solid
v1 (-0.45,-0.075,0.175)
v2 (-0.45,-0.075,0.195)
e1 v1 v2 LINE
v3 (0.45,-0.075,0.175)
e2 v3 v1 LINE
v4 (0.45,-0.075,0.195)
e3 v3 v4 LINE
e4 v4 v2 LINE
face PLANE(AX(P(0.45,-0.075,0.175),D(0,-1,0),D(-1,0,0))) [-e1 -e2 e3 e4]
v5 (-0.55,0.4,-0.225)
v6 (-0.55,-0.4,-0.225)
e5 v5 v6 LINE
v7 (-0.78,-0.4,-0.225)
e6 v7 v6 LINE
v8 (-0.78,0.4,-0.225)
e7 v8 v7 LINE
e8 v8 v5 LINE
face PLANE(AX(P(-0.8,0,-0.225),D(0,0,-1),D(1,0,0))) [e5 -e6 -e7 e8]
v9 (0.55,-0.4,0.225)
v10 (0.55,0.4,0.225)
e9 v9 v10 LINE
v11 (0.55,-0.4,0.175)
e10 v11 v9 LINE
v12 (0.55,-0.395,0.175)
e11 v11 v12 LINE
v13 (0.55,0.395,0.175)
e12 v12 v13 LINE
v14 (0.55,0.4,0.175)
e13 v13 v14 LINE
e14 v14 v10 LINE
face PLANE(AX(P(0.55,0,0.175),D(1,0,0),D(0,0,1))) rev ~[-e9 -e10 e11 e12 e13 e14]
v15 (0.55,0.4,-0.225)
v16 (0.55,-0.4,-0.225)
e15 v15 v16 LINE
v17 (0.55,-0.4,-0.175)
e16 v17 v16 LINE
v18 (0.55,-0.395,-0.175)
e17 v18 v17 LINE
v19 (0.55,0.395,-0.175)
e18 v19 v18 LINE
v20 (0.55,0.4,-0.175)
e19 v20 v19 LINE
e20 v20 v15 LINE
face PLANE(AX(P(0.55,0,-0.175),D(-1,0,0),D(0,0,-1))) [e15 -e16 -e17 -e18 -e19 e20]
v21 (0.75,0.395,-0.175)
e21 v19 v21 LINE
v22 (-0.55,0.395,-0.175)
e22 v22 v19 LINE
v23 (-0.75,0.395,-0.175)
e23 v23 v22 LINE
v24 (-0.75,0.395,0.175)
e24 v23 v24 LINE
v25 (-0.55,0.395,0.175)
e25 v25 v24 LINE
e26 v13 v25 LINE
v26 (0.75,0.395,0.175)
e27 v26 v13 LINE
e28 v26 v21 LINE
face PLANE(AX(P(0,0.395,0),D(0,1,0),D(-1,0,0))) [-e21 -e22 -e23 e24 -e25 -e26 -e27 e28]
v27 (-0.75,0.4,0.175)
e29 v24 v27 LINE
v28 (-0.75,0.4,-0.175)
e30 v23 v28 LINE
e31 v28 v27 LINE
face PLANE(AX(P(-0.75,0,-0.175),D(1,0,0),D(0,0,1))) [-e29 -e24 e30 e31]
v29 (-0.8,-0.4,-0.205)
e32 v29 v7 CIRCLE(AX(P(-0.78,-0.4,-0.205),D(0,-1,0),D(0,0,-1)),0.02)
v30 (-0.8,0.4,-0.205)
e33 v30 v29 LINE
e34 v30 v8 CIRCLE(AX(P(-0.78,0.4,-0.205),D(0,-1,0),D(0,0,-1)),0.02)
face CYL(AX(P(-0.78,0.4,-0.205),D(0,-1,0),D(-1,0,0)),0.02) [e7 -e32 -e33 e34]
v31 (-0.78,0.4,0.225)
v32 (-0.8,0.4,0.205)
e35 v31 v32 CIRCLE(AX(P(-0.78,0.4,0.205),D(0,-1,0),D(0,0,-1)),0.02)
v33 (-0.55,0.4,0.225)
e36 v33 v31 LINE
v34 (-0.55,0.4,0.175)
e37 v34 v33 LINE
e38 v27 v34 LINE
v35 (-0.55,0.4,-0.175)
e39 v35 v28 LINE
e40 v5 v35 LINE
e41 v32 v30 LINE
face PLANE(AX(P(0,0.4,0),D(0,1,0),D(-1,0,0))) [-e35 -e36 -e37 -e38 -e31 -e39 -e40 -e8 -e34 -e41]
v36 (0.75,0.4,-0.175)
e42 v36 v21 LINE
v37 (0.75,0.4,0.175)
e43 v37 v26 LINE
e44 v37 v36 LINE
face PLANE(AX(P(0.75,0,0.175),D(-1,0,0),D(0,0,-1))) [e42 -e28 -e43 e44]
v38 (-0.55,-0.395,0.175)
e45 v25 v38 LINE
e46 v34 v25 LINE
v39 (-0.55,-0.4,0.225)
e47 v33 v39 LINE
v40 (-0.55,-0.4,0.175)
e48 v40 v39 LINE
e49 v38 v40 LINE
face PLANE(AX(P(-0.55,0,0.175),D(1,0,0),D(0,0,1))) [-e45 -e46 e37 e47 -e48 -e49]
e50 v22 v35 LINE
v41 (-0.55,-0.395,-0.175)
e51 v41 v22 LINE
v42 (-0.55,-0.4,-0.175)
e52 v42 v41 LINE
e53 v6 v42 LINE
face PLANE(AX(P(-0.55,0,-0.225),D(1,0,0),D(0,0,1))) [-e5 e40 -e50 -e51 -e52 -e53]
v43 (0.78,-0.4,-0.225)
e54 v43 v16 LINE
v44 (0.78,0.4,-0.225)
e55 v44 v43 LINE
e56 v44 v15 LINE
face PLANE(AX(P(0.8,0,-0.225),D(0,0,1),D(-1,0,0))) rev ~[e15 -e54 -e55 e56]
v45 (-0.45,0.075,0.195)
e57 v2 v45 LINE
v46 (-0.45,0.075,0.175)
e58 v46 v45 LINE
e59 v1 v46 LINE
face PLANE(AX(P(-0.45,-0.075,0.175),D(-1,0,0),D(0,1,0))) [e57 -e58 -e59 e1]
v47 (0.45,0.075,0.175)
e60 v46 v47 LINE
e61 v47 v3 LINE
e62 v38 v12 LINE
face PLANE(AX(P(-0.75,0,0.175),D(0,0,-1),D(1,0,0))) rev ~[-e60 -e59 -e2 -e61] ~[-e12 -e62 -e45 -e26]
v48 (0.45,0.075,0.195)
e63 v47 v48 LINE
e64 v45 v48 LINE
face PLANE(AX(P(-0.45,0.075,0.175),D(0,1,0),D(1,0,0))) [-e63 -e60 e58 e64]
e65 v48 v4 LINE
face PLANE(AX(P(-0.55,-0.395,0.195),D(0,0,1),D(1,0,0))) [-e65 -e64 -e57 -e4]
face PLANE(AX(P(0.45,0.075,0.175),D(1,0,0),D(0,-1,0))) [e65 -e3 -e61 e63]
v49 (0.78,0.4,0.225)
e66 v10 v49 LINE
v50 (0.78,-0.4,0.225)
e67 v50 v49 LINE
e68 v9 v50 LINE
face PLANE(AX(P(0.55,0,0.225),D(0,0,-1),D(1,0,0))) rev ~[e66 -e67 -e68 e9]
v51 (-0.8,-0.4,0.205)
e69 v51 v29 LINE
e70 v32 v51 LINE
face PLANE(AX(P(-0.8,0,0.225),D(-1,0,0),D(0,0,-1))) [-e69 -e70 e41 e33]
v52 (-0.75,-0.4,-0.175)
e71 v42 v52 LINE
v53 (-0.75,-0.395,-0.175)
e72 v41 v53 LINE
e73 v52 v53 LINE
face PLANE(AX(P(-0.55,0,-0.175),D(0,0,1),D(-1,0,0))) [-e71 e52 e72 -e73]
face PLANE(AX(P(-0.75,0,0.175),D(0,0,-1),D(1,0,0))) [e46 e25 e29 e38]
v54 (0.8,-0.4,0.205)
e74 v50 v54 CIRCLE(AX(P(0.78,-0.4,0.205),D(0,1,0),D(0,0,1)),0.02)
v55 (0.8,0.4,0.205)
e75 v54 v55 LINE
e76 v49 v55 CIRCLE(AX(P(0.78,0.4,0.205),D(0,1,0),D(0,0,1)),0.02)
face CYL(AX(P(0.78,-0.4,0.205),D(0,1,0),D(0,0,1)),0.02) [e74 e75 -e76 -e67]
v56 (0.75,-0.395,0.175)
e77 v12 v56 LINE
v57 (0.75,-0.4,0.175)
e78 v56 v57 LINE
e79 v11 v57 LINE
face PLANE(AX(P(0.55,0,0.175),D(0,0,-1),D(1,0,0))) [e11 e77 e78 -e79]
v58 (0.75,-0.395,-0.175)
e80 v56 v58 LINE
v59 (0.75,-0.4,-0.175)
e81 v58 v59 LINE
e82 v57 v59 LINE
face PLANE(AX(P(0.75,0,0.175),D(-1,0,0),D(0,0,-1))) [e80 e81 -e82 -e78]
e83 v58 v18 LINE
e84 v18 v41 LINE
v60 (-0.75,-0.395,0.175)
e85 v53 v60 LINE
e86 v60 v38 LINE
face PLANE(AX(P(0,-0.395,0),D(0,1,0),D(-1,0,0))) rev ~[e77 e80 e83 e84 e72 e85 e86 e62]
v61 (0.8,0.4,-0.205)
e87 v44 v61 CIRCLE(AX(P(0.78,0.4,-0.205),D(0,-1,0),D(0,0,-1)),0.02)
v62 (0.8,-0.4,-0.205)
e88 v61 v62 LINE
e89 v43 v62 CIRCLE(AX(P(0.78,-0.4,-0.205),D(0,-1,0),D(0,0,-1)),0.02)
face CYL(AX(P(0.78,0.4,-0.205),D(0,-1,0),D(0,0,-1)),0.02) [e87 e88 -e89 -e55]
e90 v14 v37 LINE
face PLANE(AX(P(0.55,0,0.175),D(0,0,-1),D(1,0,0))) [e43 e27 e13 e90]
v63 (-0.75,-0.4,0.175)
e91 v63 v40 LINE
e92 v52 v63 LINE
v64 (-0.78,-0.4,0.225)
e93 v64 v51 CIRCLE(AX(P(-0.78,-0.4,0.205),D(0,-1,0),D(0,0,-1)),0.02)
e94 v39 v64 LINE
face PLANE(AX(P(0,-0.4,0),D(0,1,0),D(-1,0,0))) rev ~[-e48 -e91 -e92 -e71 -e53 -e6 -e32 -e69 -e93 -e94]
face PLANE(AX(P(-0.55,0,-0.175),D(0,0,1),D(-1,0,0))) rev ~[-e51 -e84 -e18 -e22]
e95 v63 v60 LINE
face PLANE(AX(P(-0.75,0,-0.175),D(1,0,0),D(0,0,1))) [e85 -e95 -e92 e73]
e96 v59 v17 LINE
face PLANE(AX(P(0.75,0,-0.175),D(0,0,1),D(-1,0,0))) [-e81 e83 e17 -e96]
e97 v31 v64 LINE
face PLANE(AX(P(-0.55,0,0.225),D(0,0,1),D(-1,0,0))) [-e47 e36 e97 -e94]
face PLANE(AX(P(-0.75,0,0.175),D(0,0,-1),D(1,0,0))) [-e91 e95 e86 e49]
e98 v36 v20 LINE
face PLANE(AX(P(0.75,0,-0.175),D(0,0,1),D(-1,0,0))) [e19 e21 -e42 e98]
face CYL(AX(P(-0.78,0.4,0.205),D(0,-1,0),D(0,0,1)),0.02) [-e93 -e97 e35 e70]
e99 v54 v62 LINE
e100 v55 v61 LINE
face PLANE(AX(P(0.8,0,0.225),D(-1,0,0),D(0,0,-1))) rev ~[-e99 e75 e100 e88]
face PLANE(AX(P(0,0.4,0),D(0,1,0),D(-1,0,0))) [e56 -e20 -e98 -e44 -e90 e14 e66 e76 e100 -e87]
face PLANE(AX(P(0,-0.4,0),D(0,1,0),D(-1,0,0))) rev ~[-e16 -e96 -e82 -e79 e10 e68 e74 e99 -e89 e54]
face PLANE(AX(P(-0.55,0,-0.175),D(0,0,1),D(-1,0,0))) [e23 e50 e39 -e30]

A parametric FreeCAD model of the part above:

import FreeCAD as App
import Part
import Sketcher
from FreeCAD import Vector


def edges_at(feature, points):
    """Names of the edges that pass closest to the given points."""
    edges = feature.Shape.Edges
    near = lambda p: min(range(len(edges)), key=lambda i: edges[i].distToShape(Part.Vertex(*p))[0])
    return sorted({f"Edge{near(p) + 1}" for p in points})

doc = App.newDocument("Part")
params = doc.addObject("Spreadsheet::Sheet", "Params")
for row, (alias, value) in enumerate([
    ("sketch1_width", "0.25 mm"),
    ("sketch1_height", "0.05 mm"),
    ("sketch1_height2", "0.45 mm"),
    ("pad1_length", "0.8 mm"),
    ("sketch2_width", "1.5 mm"),
    ("sketch2_height", "0.35 mm"),
    ("pad2_length", "0.79 mm"),
    ("sketch3_width", "0.9 mm"),
    ("sketch3_height", "0.15 mm"),
    ("pad3_length", "0.02 mm"),
    ("fillet_radius", "0.02 mm"),
], start=1):
    params.set(f"A{row}", alias)
    params.set(f"B{row}", "=" + value)
    params.setAlias(f"B{row}", alias)

body = doc.addObject("PartDesign::Body", "Body")
body.AllowCompound = True

# Sketch on XZ plane
sketch1 = body.newObject("Sketcher::SketchObject", "Sketch")
sketch1.AttachmentSupport = (doc.getObject("XZ_Plane"), [""])
sketch1.MapMode = "FlatFace"
sketch1.addGeometry(Part.LineSegment(Vector(-0.55, 0.17, 0), Vector(-0.75, 0.17, 0)), False)
sketch1.addGeometry(Part.LineSegment(Vector(-0.75, 0.17, 0), Vector(-0.75, -0.17, 0)), False)
sketch1.addGeometry(Part.LineSegment(Vector(-0.75, -0.17, 0), Vector(-0.55, -0.17, 0)), False)
sketch1.addGeometry(Part.LineSegment(Vector(-0.55, -0.17, 0), Vector(-0.55, -0.23, 0)), False)
sketch1.addGeometry(Part.LineSegment(Vector(-0.55, -0.23, 0), Vector(-0.8, -0.23, 0)), False)
sketch1.addGeometry(Part.LineSegment(Vector(-0.8, -0.23, 0), Vector(-0.8, 0.23, 0)), False)
sketch1.addGeometry(Part.LineSegment(Vector(-0.8, 0.23, 0), Vector(-0.55, 0.23, 0)), False)
sketch1.addGeometry(Part.LineSegment(Vector(-0.55, 0.23, 0), Vector(-0.55, 0.17, 0)), False)
sketch1.addGeometry(Part.LineSegment(Vector(0.75, 0.17, 0), Vector(0.55, 0.17, 0)), False)
sketch1.addGeometry(Part.LineSegment(Vector(0.55, 0.17, 0), Vector(0.55, 0.23, 0)), False)
sketch1.addGeometry(Part.LineSegment(Vector(0.55, 0.23, 0), Vector(0.8, 0.23, 0)), False)
sketch1.addGeometry(Part.LineSegment(Vector(0.8, 0.23, 0), Vector(0.8, -0.23, 0)), False)
sketch1.addGeometry(Part.LineSegment(Vector(0.8, -0.23, 0), Vector(0.55, -0.23, 0)), False)
sketch1.addGeometry(Part.LineSegment(Vector(0.55, -0.23, 0), Vector(0.55, -0.17, 0)), False)
sketch1.addGeometry(Part.LineSegment(Vector(0.55, -0.17, 0), Vector(0.75, -0.17, 0)), False)
sketch1.addGeometry(Part.LineSegment(Vector(0.75, -0.17, 0), Vector(0.75, 0.17, 0)), False)
sketch1.addConstraint(Sketcher.Constraint("Coincident", 0, 2, 1, 1))
sketch1.addConstraint(Sketcher.Constraint("Coincident", 1, 2, 2, 1))
sketch1.addConstraint(Sketcher.Constraint("Coincident", 2, 2, 3, 1))
sketch1.addConstraint(Sketcher.Constraint("Coincident", 3, 2, 4, 1))
sketch1.addConstraint(Sketcher.Constraint("Coincident", 4, 2, 5, 1))
sketch1.addConstraint(Sketcher.Constraint("Coincident", 5, 2, 6, 1))
sketch1.addConstraint(Sketcher.Constraint("Coincident", 6, 2, 7, 1))
sketch1.addConstraint(Sketcher.Constraint("Coincident", 7, 2, 0, 1))
sketch1.addConstraint(Sketcher.Constraint("Coincident", 8, 2, 9, 1))
sketch1.addConstraint(Sketcher.Constraint("Coincident", 9, 2, 10, 1))
sketch1.addConstraint(Sketcher.Constraint("Coincident", 10, 2, 11, 1))
sketch1.addConstraint(Sketcher.Constraint("Coincident", 11, 2, 12, 1))
sketch1.addConstraint(Sketcher.Constraint("Coincident", 12, 2, 13, 1))
sketch1.addConstraint(Sketcher.Constraint("Coincident", 13, 2, 14, 1))
sketch1.addConstraint(Sketcher.Constraint("Coincident", 14, 2, 15, 1))
sketch1.addConstraint(Sketcher.Constraint("Coincident", 15, 2, 8, 1))
sketch1.addConstraint(Sketcher.Constraint("Horizontal", 0))
sketch1.addConstraint(Sketcher.Constraint("Vertical", 1))
sketch1.addConstraint(Sketcher.Constraint("Horizontal", 2))
sketch1.addConstraint(Sketcher.Constraint("Vertical", 3))
sketch1.addConstraint(Sketcher.Constraint("Horizontal", 4))
sketch1.addConstraint(Sketcher.Constraint("Vertical", 5))
sketch1.addConstraint(Sketcher.Constraint("Horizontal", 6))
sketch1.addConstraint(Sketcher.Constraint("Vertical", 7))
sketch1.addConstraint(Sketcher.Constraint("Horizontal", 8))
sketch1.addConstraint(Sketcher.Constraint("Vertical", 9))
sketch1.addConstraint(Sketcher.Constraint("Horizontal", 10))
sketch1.addConstraint(Sketcher.Constraint("Vertical", 11))
sketch1.addConstraint(Sketcher.Constraint("Horizontal", 12))
sketch1.addConstraint(Sketcher.Constraint("Vertical", 13))
sketch1.addConstraint(Sketcher.Constraint("Horizontal", 14))
sketch1.addConstraint(Sketcher.Constraint("Vertical", 15))
sketch1.addConstraint(Sketcher.Constraint("Symmetric", 2, 2, 8, 2, -1, 1))
sketch1.addConstraint(Sketcher.Constraint("Symmetric", 4, 2, 10, 2, -1, 1))
sketch1.addConstraint(Sketcher.Constraint("Symmetric", 6, 2, 12, 2, -1, 1))
sketch1.addConstraint(Sketcher.Constraint("Symmetric", 0, 2, 14, 2, -1, 1))
sketch1.addConstraint(Sketcher.Constraint("Symmetric", 7, 2, 8, 2, -2))
sketch1.addConstraint(Sketcher.Constraint("Horizontal", 6, 2, 9, 2))
sketch1.addConstraint(Sketcher.Constraint("DistanceX", 4, 2, 4, 1, 0.25))
sketch1.addConstraint(Sketcher.Constraint("DistanceY", 3, 2, 3, 1, 0.05))
sketch1.addConstraint(Sketcher.Constraint("DistanceY", 5, 1, 5, 2, 0.45))
sketch1.addConstraint(Sketcher.Constraint("DistanceX", 4, 2, 1, 2, 0.05))
sketch1.addConstraint(Sketcher.Constraint("DistanceX", 4, 2, -1, 1, 0.8))
sketch1.setExpression("Constraints[38]", "Params.sketch1_width")
sketch1.setExpression("Constraints[39]", "Params.sketch1_height")
sketch1.setExpression("Constraints[40]", "Params.sketch1_height2")
pad1 = body.newObject("PartDesign::Pad", "Pad")
pad1.Profile = sketch1
pad1.setExpression("Length", "Params.pad1_length")
pad1.Midplane = True

# Sketch on XZ plane
sketch2 = body.newObject("Sketcher::SketchObject", "Sketch001")
sketch2.AttachmentSupport = (doc.getObject("XZ_Plane"), [""])
sketch2.MapMode = "FlatFace"
sketch2.addGeometry(Part.LineSegment(Vector(-0.75, -0.17, 0), Vector(-0.75, 0.17, 0)), False)
sketch2.addGeometry(Part.LineSegment(Vector(-0.75, 0.17, 0), Vector(0.75, 0.17, 0)), False)
sketch2.addGeometry(Part.LineSegment(Vector(0.75, 0.17, 0), Vector(0.75, -0.17, 0)), False)
sketch2.addGeometry(Part.LineSegment(Vector(0.75, -0.17, 0), Vector(-0.75, -0.17, 0)), False)
sketch2.addConstraint(Sketcher.Constraint("Coincident", 0, 2, 1, 1))
sketch2.addConstraint(Sketcher.Constraint("Coincident", 1, 2, 2, 1))
sketch2.addConstraint(Sketcher.Constraint("Coincident", 2, 2, 3, 1))
sketch2.addConstraint(Sketcher.Constraint("Coincident", 3, 2, 0, 1))
sketch2.addConstraint(Sketcher.Constraint("Vertical", 0))
sketch2.addConstraint(Sketcher.Constraint("Horizontal", 1))
sketch2.addConstraint(Sketcher.Constraint("Vertical", 2))
sketch2.addConstraint(Sketcher.Constraint("Horizontal", 3))
sketch2.addConstraint(Sketcher.Constraint("Symmetric", 0, 2, 2, 2, -1, 1))
sketch2.addConstraint(Sketcher.Constraint("DistanceX", 1, 1, 1, 2, 1.5))
sketch2.addConstraint(Sketcher.Constraint("DistanceY", 0, 1, 0, 2, 0.35))
sketch2.setExpression("Constraints[9]", "Params.sketch2_width")
sketch2.setExpression("Constraints[10]", "Params.sketch2_height")
pad2 = body.newObject("PartDesign::Pad", "Pad001")
pad2.Profile = sketch2
pad2.setExpression("Length", "Params.pad2_length")
pad2.Midplane = True

# Sketch on XY plane
sketch3 = body.newObject("Sketcher::SketchObject", "Sketch002")
sketch3.AttachmentSupport = (doc.getObject("XY_Plane"), [""])
sketch3.MapMode = "FlatFace"
sketch3.AttachmentOffset = App.Placement(Vector(0, 0, 0.175), App.Rotation())
sketch3.addGeometry(Part.LineSegment(Vector(-0.45, -0.07, 0), Vector(0.45, -0.07, 0)), False)
sketch3.addGeometry(Part.LineSegment(Vector(0.45, -0.07, 0), Vector(0.45, 0.07, 0)), False)
sketch3.addGeometry(Part.LineSegment(Vector(0.45, 0.07, 0), Vector(-0.45, 0.07, 0)), False)
sketch3.addGeometry(Part.LineSegment(Vector(-0.45, 0.07, 0), Vector(-0.45, -0.07, 0)), False)
sketch3.addConstraint(Sketcher.Constraint("Coincident", 0, 2, 1, 1))
sketch3.addConstraint(Sketcher.Constraint("Coincident", 1, 2, 2, 1))
sketch3.addConstraint(Sketcher.Constraint("Coincident", 2, 2, 3, 1))
sketch3.addConstraint(Sketcher.Constraint("Coincident", 3, 2, 0, 1))
sketch3.addConstraint(Sketcher.Constraint("Horizontal", 0))
sketch3.addConstraint(Sketcher.Constraint("Vertical", 1))
sketch3.addConstraint(Sketcher.Constraint("Horizontal", 2))
sketch3.addConstraint(Sketcher.Constraint("Vertical", 3))
sketch3.addConstraint(Sketcher.Constraint("Symmetric", 0, 2, 2, 2, -1, 1))
sketch3.addConstraint(Sketcher.Constraint("DistanceX", 0, 1, 0, 2, 0.9))
sketch3.addConstraint(Sketcher.Constraint("DistanceY", 1, 1, 1, 2, 0.15))
sketch3.setExpression("Constraints[9]", "Params.sketch3_width")
sketch3.setExpression("Constraints[10]", "Params.sketch3_height")
pad3 = body.newObject("PartDesign::Pad", "Pad002")
pad3.Profile = sketch3
pad3.setExpression("Length", "Params.pad3_length")
doc.recompute()

fillet = body.newObject("PartDesign::Fillet", "Fillet")
fillet.Base = (pad3, edges_at(pad3, [
    (-0.8, 0, 0.225),
    (-0.8, 0, -0.225),
    (0.8, 0, 0.225),
    (0.8, 0, -0.225),
]))
fillet.setExpression("Radius", "Params.fillet_radius")

doc.recompute()
